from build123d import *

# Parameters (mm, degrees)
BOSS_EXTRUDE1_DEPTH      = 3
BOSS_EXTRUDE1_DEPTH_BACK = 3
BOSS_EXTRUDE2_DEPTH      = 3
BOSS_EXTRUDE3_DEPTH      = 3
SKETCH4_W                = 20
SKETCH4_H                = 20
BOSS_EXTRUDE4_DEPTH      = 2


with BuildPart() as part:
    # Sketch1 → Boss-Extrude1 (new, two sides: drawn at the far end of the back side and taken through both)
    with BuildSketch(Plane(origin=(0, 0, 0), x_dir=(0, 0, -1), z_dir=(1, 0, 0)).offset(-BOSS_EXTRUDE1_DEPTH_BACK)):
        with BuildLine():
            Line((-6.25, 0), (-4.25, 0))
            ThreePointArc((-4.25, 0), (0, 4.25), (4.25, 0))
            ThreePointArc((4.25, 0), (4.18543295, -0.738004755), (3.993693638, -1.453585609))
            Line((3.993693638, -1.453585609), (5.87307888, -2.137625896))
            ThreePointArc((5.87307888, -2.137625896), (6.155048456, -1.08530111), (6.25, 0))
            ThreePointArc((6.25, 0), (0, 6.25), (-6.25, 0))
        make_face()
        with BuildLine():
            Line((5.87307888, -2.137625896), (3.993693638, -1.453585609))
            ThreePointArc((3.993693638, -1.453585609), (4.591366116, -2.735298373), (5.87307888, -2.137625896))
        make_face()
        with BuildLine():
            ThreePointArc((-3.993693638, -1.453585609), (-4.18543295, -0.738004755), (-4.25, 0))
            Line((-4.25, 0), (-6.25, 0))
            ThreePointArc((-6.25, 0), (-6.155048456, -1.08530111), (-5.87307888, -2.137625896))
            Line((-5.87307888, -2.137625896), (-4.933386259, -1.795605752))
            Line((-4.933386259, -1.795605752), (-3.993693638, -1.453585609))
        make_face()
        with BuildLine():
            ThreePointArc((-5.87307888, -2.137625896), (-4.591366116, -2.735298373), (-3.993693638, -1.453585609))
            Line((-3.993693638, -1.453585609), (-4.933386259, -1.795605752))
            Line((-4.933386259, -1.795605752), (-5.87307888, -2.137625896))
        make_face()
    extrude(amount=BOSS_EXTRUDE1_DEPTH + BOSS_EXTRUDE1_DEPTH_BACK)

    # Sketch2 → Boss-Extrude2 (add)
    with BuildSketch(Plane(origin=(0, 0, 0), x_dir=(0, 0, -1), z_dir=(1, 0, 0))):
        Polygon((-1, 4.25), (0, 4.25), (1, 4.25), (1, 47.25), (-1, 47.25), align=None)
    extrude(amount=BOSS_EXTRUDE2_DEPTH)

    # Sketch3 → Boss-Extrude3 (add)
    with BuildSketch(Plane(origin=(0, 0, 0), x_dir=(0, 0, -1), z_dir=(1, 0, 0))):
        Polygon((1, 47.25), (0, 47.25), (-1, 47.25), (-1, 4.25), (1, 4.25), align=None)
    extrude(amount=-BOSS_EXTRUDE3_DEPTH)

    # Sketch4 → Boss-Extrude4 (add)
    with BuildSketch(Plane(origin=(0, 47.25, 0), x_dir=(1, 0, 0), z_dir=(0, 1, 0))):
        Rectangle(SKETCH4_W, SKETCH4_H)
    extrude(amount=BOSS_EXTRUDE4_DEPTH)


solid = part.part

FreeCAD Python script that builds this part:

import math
import FreeCAD as App
import Part
import Sketcher
Q = App.Units.Quantity


def add_polygon(sketch, points):
    """Adds a closed chain of lines whose ends are joined by coincident constraints."""
    first, n = sketch.GeometryCount, len(points)
    for a, b in zip(points, points[1:] + points[:1]):
        sketch.addGeometry(Part.LineSegment(App.Vector(*a, 0), App.Vector(*b, 0)), False)
    for i in range(n):
        sketch.addConstraint(Sketcher.Constraint("Coincident", first + i, 2, first + (i + 1) % n, 1))

doc = App.newDocument("Part")
params = doc.addObject("Spreadsheet::Sheet", "Params")
for row, (alias, value) in enumerate([
    ("sketch1_radius", "1 mm"),
    ("sketch1_radius2", "4.25 mm"),
    ("pad1_length", "3 mm"),
    ("pad1_length2", "3 mm"),
    ("sketch2_width", "43 mm"),
    ("sketch2_height", "2 mm"),
    ("pad2_length", "3 mm"),
    ("sketch3_width", "43 mm"),
    ("sketch3_height", "2 mm"),
    ("pad3_length", "3 mm"),
    ("sketch4_width", "20 mm"),
    ("pad4_length", "2 mm"),
], start=1):
    params.set(f"A{row}", alias)
    params.set(f"B{row}", "=" + value)
    params.setAlias(f"B{row}", alias)

body = doc.addObject("PartDesign::Body", "Body")

# Sketch on YZ plane
sketch1 = body.newObject("Sketcher::SketchObject", "Sketch")
sketch1.AttachmentSupport = (doc.getObject("YZ_Plane"), [""])
sketch1.MapMode = "FlatFace"
sketch1.addGeometry(Part.ArcOfCircle(Part.Circle(App.Vector(0, 0, 0), App.Vector(0, 0, 1), 4.25), math.radians(-90), math.radians(90)), False)
sketch1.addGeometry(Part.ArcOfCircle(Part.Circle(App.Vector(0, 0, 0), App.Vector(0, 0, 1), 4.25), math.radians(-110), math.radians(-90)), False)
sketch1.addGeometry(Part.ArcOfCircle(Part.Circle(App.Vector(-1.795606, -4.933386, 0), App.Vector(0, 0, 1), 1), math.radians(70), math.radians(250)), False)
sketch1.addGeometry(Part.ArcOfCircle(Part.Circle(App.Vector(0, 0, 0), App.Vector(0, 0, 1), 6.25), math.radians(-110), math.radians(-90)), False)
sketch1.addGeometry(Part.ArcOfCircle(Part.Circle(App.Vector(0, 0, 0), App.Vector(0, 0, 1), 6.25), math.radians(-90), math.radians(90)), False)
sketch1.addGeometry(Part.ArcOfCircle(Part.Circle(App.Vector(0, 0, 0), App.Vector(0, 0, 1), 6.25), math.radians(90), math.radians(110)), False)
sketch1.addGeometry(Part.ArcOfCircle(Part.Circle(App.Vector(-1.795606, 4.933386, 0), App.Vector(0, 0, 1), 1), math.radians(110), math.radians(290)), False)
sketch1.addGeometry(Part.ArcOfCircle(Part.Circle(App.Vector(0, 0, 0), App.Vector(0, 0, 1), 4.25), math.radians(90), math.radians(110)), False)
sketch1.addConstraint(Sketcher.Constraint("Tangent", 0, 1, 1, 2))
sketch1.addConstraint(Sketcher.Constraint("Tangent", 1, 1, 2, 1))
sketch1.addConstraint(Sketcher.Constraint("Tangent", 2, 2, 3, 1))
sketch1.addConstraint(Sketcher.Constraint("Tangent", 3, 2, 4, 1))
sketch1.addConstraint(Sketcher.Constraint("Tangent", 4, 2, 5, 1))
sketch1.addConstraint(Sketcher.Constraint("Tangent", 5, 2, 6, 1))
sketch1.addConstraint(Sketcher.Constraint("Tangent", 6, 2, 7, 2))
sketch1.addConstraint(Sketcher.Constraint("Tangent", 7, 1, 0, 2))
sketch1.addConstraint(Sketcher.Constraint("Coincident", 0, 3, -1, 1))
sketch1.addConstraint(Sketcher.Constraint("Coincident", 3, 3, -1, 1))
sketch1.addConstraint(Sketcher.Constraint("Equal", 0, 1))
sketch1.addConstraint(Sketcher.Constraint("Equal", 3, 4))
sketch1.addConstraint(Sketcher.Constraint("Equal", 4, 5))
sketch1.addConstraint(Sketcher.Constraint("Equal", 2, 6))
sketch1.addConstraint(Sketcher.Constraint("PointOnObject", 0, 1, -2))
sketch1.addConstraint(Sketcher.Constraint("PointOnObject", 3, 2, -2))
sketch1.addConstraint(Sketcher.Constraint("PointOnObject", 4, 2, -2))
sketch1.addConstraint(Sketcher.Constraint("PointOnObject", 7, 1, -2))
sketch1.addConstraint(Sketcher.Constraint("Vertical", 2, 3, 6, 3))
sketch1.addConstraint(Sketcher.Constraint("Radius", 2, Q("1 mm")))
sketch1.addConstraint(Sketcher.Constraint("Radius", 0, Q("4.25 mm")))
sketch1.addConstraint(Sketcher.Constraint("DistanceY", 2, 2, -1, 1, Q("5.873079 mm")))
sketch1.setExpression("Constraints[19]", "Params.sketch1_radius")
sketch1.setExpression("Constraints[20]", "Params.sketch1_radius2")
pad1 = body.newObject("PartDesign::Pad", "Pad")
pad1.Profile = sketch1
pad1.Type = "TwoLengths"
pad1.setExpression("Length", "Params.pad1_length")
pad1.setExpression("Length2", "Params.pad1_length2")

# Sketch on YZ plane
sketch2 = body.newObject("Sketcher::SketchObject", "Sketch001")
sketch2.AttachmentSupport = (doc.getObject("YZ_Plane"), [""])
sketch2.MapMode = "FlatFace"
add_polygon(sketch2, [(4.25, 1), (4.25, -1), (47.25, -1), (47.25, 1)])  # lines 0-3
sketch2.addConstraint(Sketcher.Constraint("Vertical", 0))
sketch2.addConstraint(Sketcher.Constraint("Horizontal", 1))
sketch2.addConstraint(Sketcher.Constraint("Vertical", 2))
sketch2.addConstraint(Sketcher.Constraint("Horizontal", 3))
sketch2.addConstraint(Sketcher.Constraint("DistanceX", 1, 1, 1, 2, Q("43 mm")))
sketch2.addConstraint(Sketcher.Constraint("DistanceY", 0, 2, 0, 1, Q("2 mm")))
sketch2.addConstraint(Sketcher.Constraint("DistanceY", 0, 2, -1, 1, Q("1 mm")))
sketch2.addConstraint(Sketcher.Constraint("DistanceX", -1, 1, 0, 2, Q("4.25 mm")))
sketch2.setExpression("Constraints[8]", "Params.sketch2_width")
sketch2.setExpression("Constraints[9]", "Params.sketch2_height")
pad2 = body.newObject("PartDesign::Pad", "Pad001")
pad2.Profile = sketch2
pad2.setExpression("Length", "Params.pad2_length")

# Sketch on YZ plane
sketch3 = body.newObject("Sketcher::SketchObject", "Sketch002")
sketch3.AttachmentSupport = (doc.getObject("YZ_Plane"), [""])
sketch3.MapMode = "FlatFace"
add_polygon(sketch3, [(47.25, -1), (47.25, 1), (4.25, 1), (4.25, -1)])  # lines 0-3
sketch3.addConstraint(Sketcher.Constraint("Vertical", 0))
sketch3.addConstraint(Sketcher.Constraint("Horizontal", 1))
sketch3.addConstraint(Sketcher.Constraint("Vertical", 2))
sketch3.addConstraint(Sketcher.Constraint("Horizontal", 3))
sketch3.addConstraint(Sketcher.Constraint("DistanceX", 1, 2, 1, 1, Q("43 mm")))
sketch3.addConstraint(Sketcher.Constraint("DistanceY", 0, 1, 0, 2, Q("2 mm")))
sketch3.addConstraint(Sketcher.Constraint("DistanceY", -1, 1, 0, 2, Q("1 mm")))
sketch3.addConstraint(Sketcher.Constraint("DistanceX", -1, 1, 0, 2, Q("47.25 mm")))
sketch3.setExpression("Constraints[8]", "Params.sketch3_width")
sketch3.setExpression("Constraints[9]", "Params.sketch3_height")
pad3 = body.newObject("PartDesign::Pad", "Pad002")
pad3.Profile = sketch3
pad3.setExpression("Length", "Params.pad3_length")
pad3.Reversed = True

# Sketch on XZ plane
sketch4 = body.newObject("Sketcher::SketchObject", "Sketch003")
sketch4.AttachmentSupport = (doc.getObject("XZ_Plane"), [""])
sketch4.MapMode = "FlatFace"
sketch4.AttachmentOffset = App.Placement(App.Vector(0, 0, -47.25), App.Rotation())
add_polygon(sketch4, [(-10, -10), (-10, 10), (10, 10), (10, -10)])  # lines 0-3
sketch4.addConstraint(Sketcher.Constraint("Vertical", 0))
sketch4.addConstraint(Sketcher.Constraint("Horizontal", 1))
sketch4.addConstraint(Sketcher.Constraint("Vertical", 2))
sketch4.addConstraint(Sketcher.Constraint("Horizontal", 3))
sketch4.addConstraint(Sketcher.Constraint("Symmetric", 0, 2, 2, 2, -1, 1))
sketch4.addConstraint(Sketcher.Constraint("Equal", 3, 0))
sketch4.addConstraint(Sketcher.Constraint("DistanceX", 1, 1, 1, 2, Q("20 mm")))
sketch4.setExpression("Constraints[10]", "Params.sketch4_width")
pad4 = body.newObject("PartDesign::Pad", "Pad003")
pad4.Profile = sketch4
pad4.setExpression("Length", "Params.pad4_length")
pad4.Reversed = True

doc.recompute()
